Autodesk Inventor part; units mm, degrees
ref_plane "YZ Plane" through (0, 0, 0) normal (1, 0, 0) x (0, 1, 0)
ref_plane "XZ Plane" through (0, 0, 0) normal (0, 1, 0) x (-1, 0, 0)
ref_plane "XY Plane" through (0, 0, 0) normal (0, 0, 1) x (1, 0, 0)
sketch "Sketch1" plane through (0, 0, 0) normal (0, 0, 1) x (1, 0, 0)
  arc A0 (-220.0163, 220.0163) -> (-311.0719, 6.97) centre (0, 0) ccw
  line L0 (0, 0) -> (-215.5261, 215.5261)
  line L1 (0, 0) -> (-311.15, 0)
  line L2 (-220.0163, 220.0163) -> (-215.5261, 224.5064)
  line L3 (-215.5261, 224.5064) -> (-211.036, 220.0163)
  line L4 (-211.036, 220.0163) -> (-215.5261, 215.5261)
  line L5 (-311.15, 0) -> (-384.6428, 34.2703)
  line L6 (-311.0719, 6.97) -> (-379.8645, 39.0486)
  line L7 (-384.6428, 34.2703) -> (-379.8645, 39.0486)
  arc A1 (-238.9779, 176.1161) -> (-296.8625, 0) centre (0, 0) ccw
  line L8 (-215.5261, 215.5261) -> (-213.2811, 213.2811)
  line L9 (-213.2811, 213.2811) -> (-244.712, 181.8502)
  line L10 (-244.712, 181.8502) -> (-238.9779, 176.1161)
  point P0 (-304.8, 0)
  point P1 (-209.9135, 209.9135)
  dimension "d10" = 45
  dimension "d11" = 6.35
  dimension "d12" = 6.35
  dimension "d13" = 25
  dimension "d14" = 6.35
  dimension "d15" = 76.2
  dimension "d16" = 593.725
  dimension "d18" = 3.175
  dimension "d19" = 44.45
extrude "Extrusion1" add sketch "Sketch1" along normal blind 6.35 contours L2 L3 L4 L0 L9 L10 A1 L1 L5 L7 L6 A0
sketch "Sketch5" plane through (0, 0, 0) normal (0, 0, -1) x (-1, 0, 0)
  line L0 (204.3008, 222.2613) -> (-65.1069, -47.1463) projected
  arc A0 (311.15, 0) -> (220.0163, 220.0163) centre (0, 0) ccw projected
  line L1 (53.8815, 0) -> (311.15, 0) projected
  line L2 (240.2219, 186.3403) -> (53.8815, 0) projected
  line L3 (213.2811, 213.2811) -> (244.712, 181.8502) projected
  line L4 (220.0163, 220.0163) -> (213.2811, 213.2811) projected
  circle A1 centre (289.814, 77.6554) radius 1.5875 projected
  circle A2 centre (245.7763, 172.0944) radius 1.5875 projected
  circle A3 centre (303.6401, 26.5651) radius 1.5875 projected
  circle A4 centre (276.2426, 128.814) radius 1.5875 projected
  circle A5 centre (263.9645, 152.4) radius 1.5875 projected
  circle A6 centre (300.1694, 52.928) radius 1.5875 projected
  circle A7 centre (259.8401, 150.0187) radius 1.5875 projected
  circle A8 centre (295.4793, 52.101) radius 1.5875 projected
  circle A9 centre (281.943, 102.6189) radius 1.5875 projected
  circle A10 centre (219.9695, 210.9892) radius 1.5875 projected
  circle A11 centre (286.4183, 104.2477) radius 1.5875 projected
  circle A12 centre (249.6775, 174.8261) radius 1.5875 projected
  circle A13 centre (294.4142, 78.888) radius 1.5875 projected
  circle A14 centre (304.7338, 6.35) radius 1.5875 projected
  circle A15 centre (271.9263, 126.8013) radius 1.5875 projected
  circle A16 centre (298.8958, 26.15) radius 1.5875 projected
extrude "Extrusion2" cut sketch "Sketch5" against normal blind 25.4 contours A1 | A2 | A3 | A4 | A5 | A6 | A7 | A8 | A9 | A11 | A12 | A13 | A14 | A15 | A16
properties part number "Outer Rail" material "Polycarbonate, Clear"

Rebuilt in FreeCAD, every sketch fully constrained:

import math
import FreeCAD as App
import Part
import Sketcher

V = App.Vector
Q = App.Units.Quantity

doc = App.newDocument("Part")
body = doc.addObject("PartDesign::Body", "Body")

sketch1 = body.newObject("Sketcher::SketchObject", "Sketch")
sketch1.AttachmentSupport = (doc.getObject("XY_Plane"), [""])
sketch1.MapMode = "FlatFace"
sketch1.addGeometry(Part.LineSegment(V(-215.5, 224.5, 0), V(-220, 220, 0)), False)
sketch1.addGeometry(Part.ArcOfCircle(Part.Circle(V(0, 0, 0), V(0, 0, 1), 311.2), math.radians(135), math.radians(179)), False)
sketch1.addGeometry(Part.LineSegment(V(-311.1, 7, 0), V(-379.9, 39, 0)), False)
sketch1.addGeometry(Part.LineSegment(V(-379.9, 39, 0), V(-384.6, 34.3, 0)), False)
sketch1.addGeometry(Part.LineSegment(V(-384.6, 34.3, 0), V(-311.1, 0, 0)), False)
sketch1.addGeometry(Part.LineSegment(V(-311.1, 0, 0), V(-296.9, 0, 0)), False)
sketch1.addGeometry(Part.ArcOfCircle(Part.Circle(V(0, 0, 0), V(0, 0, 1), 296.9), math.radians(144), math.radians(180)), False)
sketch1.addGeometry(Part.LineSegment(V(-239, 176.1, 0), V(-244.7, 181.9, 0)), False)
sketch1.addGeometry(Part.LineSegment(V(-244.7, 181.9, 0), V(-213.3, 213.3, 0)), False)
sketch1.addGeometry(Part.LineSegment(V(-213.3, 213.3, 0), V(-215.5, 215.5, 0)), False)
sketch1.addGeometry(Part.LineSegment(V(-215.5, 215.5, 0), V(-211, 220, 0)), False)
sketch1.addGeometry(Part.LineSegment(V(-211, 220, 0), V(-215.5, 224.5, 0)), False)
sketch1.addConstraint(Sketcher.Constraint("Tangent", 0, 2, 1, 1))
sketch1.addConstraint(Sketcher.Constraint("Coincident", 1, 2, 2, 1))
sketch1.addConstraint(Sketcher.Constraint("Coincident", 2, 2, 3, 1))
sketch1.addConstraint(Sketcher.Constraint("Coincident", 3, 2, 4, 1))
sketch1.addConstraint(Sketcher.Constraint("Coincident", 4, 2, 5, 1))
sketch1.addConstraint(Sketcher.Constraint("Coincident", 5, 2, 6, 2))
sketch1.addConstraint(Sketcher.Constraint("Coincident", 6, 1, 7, 1))
sketch1.addConstraint(Sketcher.Constraint("Coincident", 7, 2, 8, 1))
sketch1.addConstraint(Sketcher.Constraint("Coincident", 8, 2, 9, 1))
sketch1.addConstraint(Sketcher.Constraint("Coincident", 9, 2, 10, 1))
sketch1.addConstraint(Sketcher.Constraint("Coincident", 10, 2, 11, 1))
sketch1.addConstraint(Sketcher.Constraint("Coincident", 11, 2, 0, 1))
sketch1.addConstraint(Sketcher.Constraint("Horizontal", 5))
sketch1.addConstraint(Sketcher.Constraint("Coincident", 1, 3, -1, 1))
sketch1.addConstraint(Sketcher.Constraint("Coincident", 6, 3, -1, 1))
sketch1.addConstraint(Sketcher.Constraint("PointOnObject", 4, 2, -1))
sketch1.addConstraint(Sketcher.Constraint("Parallel", 0, 3))
sketch1.addConstraint(Sketcher.Constraint("Parallel", 2, 4))
sketch1.addConstraint(Sketcher.Constraint("Perpendicular", 3, 7))
sketch1.addConstraint(Sketcher.Constraint("Perpendicular", 7, 8))
sketch1.addConstraint(Sketcher.Constraint("Perpendicular", 8, 9))
sketch1.addConstraint(Sketcher.Constraint("Perpendicular", 9, 10))
sketch1.addConstraint(Sketcher.Constraint("Perpendicular", 10, 11))
sketch1.addConstraint(Sketcher.Constraint("Horizontal", 0, 2, 10, 2))
sketch1.addConstraint(Sketcher.Constraint("Vertical", 9, 2, 11, 2))
sketch1.addConstraint(Sketcher.Constraint("Equal", 0, 10))
sketch1.addConstraint(Sketcher.Constraint("Angle", 4, Q("-25 deg")))
sketch1.addConstraint(Sketcher.Constraint("Radius", 6, Q("11.6875 in")))
sketch1.addConstraint(Sketcher.Constraint("Distance", 0, Q("0.25 in")))
sketch1.addConstraint(Sketcher.Constraint("Distance", 8, Q("1.75 in")))
sketch1.addConstraint(Sketcher.Constraint("Radius", 1, Q("12.25 in")))
sketch1.addConstraint(Sketcher.Constraint("Distance", 9, Q("0.125 in")))
sketch1.addConstraint(Sketcher.Constraint("DistanceX", 5, 1, 5, 2, Q("0.5625 in")))
sketch1.addConstraint(Sketcher.Constraint("DistanceX", 2, 2, -1, 1, Q("14.9553 in")))
sketch1.addConstraint(Sketcher.Constraint("DistanceX", 3, 2, 1, 2, Q("2.8965 in")))
pad1 = body.newObject("PartDesign::Pad", "Pad")
pad1.Profile = sketch1
pad1.Length = Q("0.25 in")

sketch2 = body.newObject("Sketcher::SketchObject", "Sketch001")
sketch2.AttachmentSupport = (doc.getObject("XY_Plane"), [""])
sketch2.MapMode = "FlatFace"
sketch2.addGeometry(Part.Circle(V(-289.8, 77.7, 0), V(0, 0, 1), 1.6), False)
sketch2.addGeometry(Part.Circle(V(-245.8, 172.1, 0), V(0, 0, 1), 1.6), False)
sketch2.addGeometry(Part.Circle(V(-303.6, 26.6, 0), V(0, 0, 1), 1.6), False)
sketch2.addGeometry(Part.Circle(V(-276.2, 128.8, 0), V(0, 0, 1), 1.6), False)
sketch2.addGeometry(Part.Circle(V(-264, 152.4, 0), V(0, 0, 1), 1.6), False)
sketch2.addGeometry(Part.Circle(V(-300.2, 52.9, 0), V(0, 0, 1), 1.6), False)
sketch2.addGeometry(Part.Circle(V(-259.8, 150, 0), V(0, 0, 1), 1.6), False)
sketch2.addGeometry(Part.Circle(V(-295.5, 52.1, 0), V(0, 0, 1), 1.6), False)
sketch2.addGeometry(Part.Circle(V(-281.9, 102.6, 0), V(0, 0, 1), 1.6), False)
sketch2.addGeometry(Part.Circle(V(-286.4, 104.2, 0), V(0, 0, 1), 1.6), False)
sketch2.addGeometry(Part.Circle(V(-249.7, 174.8, 0), V(0, 0, 1), 1.6), False)
sketch2.addGeometry(Part.Circle(V(-294.4, 78.9, 0), V(0, 0, 1), 1.6), False)
sketch2.addGeometry(Part.Circle(V(-304.7, 6.3, 0), V(0, 0, 1), 1.6), False)
sketch2.addGeometry(Part.Circle(V(-271.9, 126.8, 0), V(0, 0, 1), 1.6), False)
sketch2.addGeometry(Part.Circle(V(-298.9, 26.1, 0), V(0, 0, 1), 1.6), False)
sketch2.addConstraint(Sketcher.Constraint("Equal", 0, 1))
sketch2.addConstraint(Sketcher.Constraint("Equal", 1, 2))
sketch2.addConstraint(Sketcher.Constraint("Equal", 2, 3))
sketch2.addConstraint(Sketcher.Constraint("Equal", 3, 4))
sketch2.addConstraint(Sketcher.Constraint("Equal", 4, 5))
sketch2.addConstraint(Sketcher.Constraint("Equal", 5, 6))
sketch2.addConstraint(Sketcher.Constraint("Equal", 6, 7))
sketch2.addConstraint(Sketcher.Constraint("Equal", 7, 8))
sketch2.addConstraint(Sketcher.Constraint("Equal", 8, 9))
sketch2.addConstraint(Sketcher.Constraint("Equal", 9, 10))
sketch2.addConstraint(Sketcher.Constraint("Equal", 10, 11))
sketch2.addConstraint(Sketcher.Constraint("Equal", 11, 12))
sketch2.addConstraint(Sketcher.Constraint("Equal", 12, 13))
sketch2.addConstraint(Sketcher.Constraint("Equal", 13, 14))
sketch2.addConstraint(Sketcher.Constraint("Diameter", 0, Q("0.125 in")))
sketch2.addConstraint(Sketcher.Constraint("DistanceY", -1, 1, 4, 3, Q("6 in")))
sketch2.addConstraint(Sketcher.Constraint("DistanceX", 0, 3, -1, 1, Q("11.41 in")))
sketch2.addConstraint(Sketcher.Constraint("DistanceY", -1, 1, 12, 3, Q("0.25 in")))
sketch2.addConstraint(Sketcher.Constraint("DistanceY", -1, 1, 6, 3, Q("5.906248 in")))
sketch2.addConstraint(Sketcher.Constraint("DistanceX", 5, 3, 3, 3, Q("0.942 in")))
sketch2.addConstraint(Sketcher.Constraint("DistanceY", 9, 3, 6, 3, Q("1.802 in")))
sketch2.addConstraint(Sketcher.Constraint("DistanceX", 11, 3, 8, 3, Q("0.491 in")))
sketch2.addConstraint(Sketcher.Constraint("DistanceY", -1, 1, 0, 3, Q("3.0573 in")))
sketch2.addConstraint(Sketcher.Constraint("DistanceX", 3, 3, -1, 1, Q("10.8757 in")))
sketch2.addConstraint(Sketcher.Constraint("DistanceX", 4, 3, -1, 1, Q("10.3923 in")))
sketch2.addConstraint(Sketcher.Constraint("DistanceX", 9, 3, -1, 1, Q("11.2763 in")))
sketch2.addConstraint(Sketcher.Constraint("DistanceX", 11, 3, -1, 1, Q("11.5911 in")))
sketch2.addConstraint(Sketcher.Constraint("DistanceX", 12, 3, -1, 1, Q("11.9974 in")))
sketch2.addConstraint(Sketcher.Constraint("DistanceX", 2, 3, 1, 3, Q("2.2781 in")))
sketch2.addConstraint(Sketcher.Constraint("DistanceY", 2, 3, 1, 3, Q("5.7295 in")))
sketch2.addConstraint(Sketcher.Constraint("DistanceY", 2, 3, 5, 3, Q("1.0379 in")))
sketch2.addConstraint(Sketcher.Constraint("DistanceX", 6, 3, 1, 3, Q("0.5537 in")))
sketch2.addConstraint(Sketcher.Constraint("DistanceX", 2, 3, 7, 3, Q("0.3213 in")))
sketch2.addConstraint(Sketcher.Constraint("DistanceY", 7, 3, 3, 3, Q("3.0202 in")))
sketch2.addConstraint(Sketcher.Constraint("DistanceY", 8, 3, 3, 3, Q("1.0313 in")))
sketch2.addConstraint(Sketcher.Constraint("DistanceX", 8, 3, 6, 3, Q("0.8702 in")))
sketch2.addConstraint(Sketcher.Constraint("DistanceX", 10, 3, 1, 3, Q("0.1536 in")))
sketch2.addConstraint(Sketcher.Constraint("DistanceY", 3, 3, 10, 3, Q("1.8115 in")))
sketch2.addConstraint(Sketcher.Constraint("DistanceY", 7, 3, 11, 3, Q("1.0546 in")))
sketch2.addConstraint(Sketcher.Constraint("DistanceX", 14, 3, 7, 3, Q("0.1345 in")))
sketch2.addConstraint(Sketcher.Constraint("DistanceY", 14, 3, 7, 3, Q("1.0217 in")))
sketch2.addConstraint(Sketcher.Constraint("DistanceY", -1, 1, 1, 3, Q("172.0944 mm")))
sketch2.addConstraint(Sketcher.Constraint("DistanceY", -1, 1, 3, 3, Q("128.814 mm")))
sketch2.addConstraint(Sketcher.Constraint("DistanceX", 13, 3, -1, 1, Q("271.9263 mm")))
sketch2.addConstraint(Sketcher.Constraint("DistanceY", -1, 1, 13, 3, Q("126.8013 mm")))
pocket1 = body.newObject("PartDesign::Pocket", "Pocket")
pocket1.Profile = sketch2
pocket1.Length = Q("1 in")
pocket1.Reversed = True

doc.recompute()
